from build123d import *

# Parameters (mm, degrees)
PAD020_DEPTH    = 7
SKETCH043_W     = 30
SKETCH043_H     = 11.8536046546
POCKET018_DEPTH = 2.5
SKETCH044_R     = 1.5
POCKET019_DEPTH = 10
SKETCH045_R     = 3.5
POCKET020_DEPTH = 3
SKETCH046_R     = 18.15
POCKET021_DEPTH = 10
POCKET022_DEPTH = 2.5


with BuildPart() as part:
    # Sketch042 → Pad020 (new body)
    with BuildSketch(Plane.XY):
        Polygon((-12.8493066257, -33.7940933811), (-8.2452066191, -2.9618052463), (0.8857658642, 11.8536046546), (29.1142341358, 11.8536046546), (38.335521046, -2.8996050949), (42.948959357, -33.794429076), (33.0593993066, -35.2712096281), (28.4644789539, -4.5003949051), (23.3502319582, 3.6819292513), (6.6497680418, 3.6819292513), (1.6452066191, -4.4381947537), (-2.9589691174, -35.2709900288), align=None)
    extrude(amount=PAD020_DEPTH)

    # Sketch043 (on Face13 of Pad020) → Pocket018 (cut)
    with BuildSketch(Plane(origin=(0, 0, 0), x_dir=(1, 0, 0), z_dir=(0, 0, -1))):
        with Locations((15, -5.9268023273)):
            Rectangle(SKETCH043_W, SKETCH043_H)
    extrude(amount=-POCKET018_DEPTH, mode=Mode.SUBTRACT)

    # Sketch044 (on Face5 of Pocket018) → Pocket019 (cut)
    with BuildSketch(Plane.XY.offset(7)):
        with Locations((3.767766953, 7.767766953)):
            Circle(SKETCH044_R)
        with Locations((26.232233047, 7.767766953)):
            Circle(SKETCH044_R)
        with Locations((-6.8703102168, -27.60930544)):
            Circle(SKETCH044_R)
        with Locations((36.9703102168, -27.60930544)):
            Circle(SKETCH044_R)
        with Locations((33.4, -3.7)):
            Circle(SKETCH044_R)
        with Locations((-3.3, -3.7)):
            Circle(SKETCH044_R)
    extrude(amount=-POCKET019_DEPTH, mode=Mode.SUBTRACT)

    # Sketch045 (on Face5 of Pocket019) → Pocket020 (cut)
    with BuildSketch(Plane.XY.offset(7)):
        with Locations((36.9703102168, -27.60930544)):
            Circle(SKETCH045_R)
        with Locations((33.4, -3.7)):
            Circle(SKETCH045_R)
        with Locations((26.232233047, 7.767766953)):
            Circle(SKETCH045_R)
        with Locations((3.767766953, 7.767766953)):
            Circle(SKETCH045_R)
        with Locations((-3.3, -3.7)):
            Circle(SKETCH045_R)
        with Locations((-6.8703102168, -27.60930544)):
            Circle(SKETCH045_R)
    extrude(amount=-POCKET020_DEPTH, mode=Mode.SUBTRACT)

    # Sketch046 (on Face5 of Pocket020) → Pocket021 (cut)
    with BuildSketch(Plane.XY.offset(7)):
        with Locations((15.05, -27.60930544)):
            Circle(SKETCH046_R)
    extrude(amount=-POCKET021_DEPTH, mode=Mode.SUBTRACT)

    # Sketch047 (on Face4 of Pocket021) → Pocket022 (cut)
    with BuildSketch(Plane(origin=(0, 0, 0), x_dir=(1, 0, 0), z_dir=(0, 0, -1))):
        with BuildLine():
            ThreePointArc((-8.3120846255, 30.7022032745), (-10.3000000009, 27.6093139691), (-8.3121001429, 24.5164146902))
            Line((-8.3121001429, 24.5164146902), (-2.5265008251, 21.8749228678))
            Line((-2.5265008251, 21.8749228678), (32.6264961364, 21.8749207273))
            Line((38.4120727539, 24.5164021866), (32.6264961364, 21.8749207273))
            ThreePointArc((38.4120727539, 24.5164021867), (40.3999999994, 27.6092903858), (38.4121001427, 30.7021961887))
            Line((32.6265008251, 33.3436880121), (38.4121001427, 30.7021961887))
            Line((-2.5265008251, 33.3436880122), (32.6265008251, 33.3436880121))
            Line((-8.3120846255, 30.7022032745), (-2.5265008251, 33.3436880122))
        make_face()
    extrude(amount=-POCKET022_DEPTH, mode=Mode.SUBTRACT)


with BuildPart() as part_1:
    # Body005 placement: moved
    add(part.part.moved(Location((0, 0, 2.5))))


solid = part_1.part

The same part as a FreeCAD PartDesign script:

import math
import FreeCAD as App
import Part
import Sketcher
Q = App.Units.Quantity


def add_polygon(sketch, points):
    """Adds a closed chain of lines whose ends are joined by coincident constraints."""
    first, n = sketch.GeometryCount, len(points)
    for a, b in zip(points, points[1:] + points[:1]):
        sketch.addGeometry(Part.LineSegment(App.Vector(*a, 0), App.Vector(*b, 0)), False)
    for i in range(n):
        sketch.addConstraint(Sketcher.Constraint("Coincident", first + i, 2, first + (i + 1) % n, 1))

doc = App.newDocument("Part")
params = doc.addObject("Spreadsheet::Sheet", "Params")
for row, (alias, value) in enumerate([
    ("sketch1_length", "10 mm"),
    ("pad1_length", "7 mm"),
    ("sketch2_width", "30 mm"),
    ("pocket1_length", "2.5 mm"),
    ("sketch3_diameter", "3 mm"),
    ("pocket2_length", "10 mm"),
    ("sketch4_diameter", "7 mm"),
    ("pocket3_length", "3 mm"),
    ("sketch5_diameter", "36.3 mm"),
    ("pocket4_length", "10 mm"),
    ("sketch6_radius", "3.4 mm"),
    ("pocket5_length", "2.5 mm"),
], start=1):
    params.set(f"A{row}", alias)
    params.set(f"B{row}", "=" + value)
    params.setAlias(f"B{row}", alias)

body = doc.addObject("PartDesign::Body", "Body")

# Sketch on XY plane
sketch1 = body.newObject("Sketcher::SketchObject", "Sketch")
sketch1.AttachmentSupport = (doc.getObject("XY_Plane"), [""])
sketch1.MapMode = "FlatFace"
add_polygon(sketch1, [(-8, -3), (-13, -34), (-3, -35), (2, -4), (7, 4), (23, 4), (28, -5), (33, -35), (43, -34), (38, -3), (29, 12), (1, 12)])  # lines 0-11
sketch1.addConstraint([
    Sketcher.Constraint("Horizontal", 4),
    Sketcher.Constraint("Horizontal", 10),
    Sketcher.Constraint("Perpendicular", 0, 1),
    Sketcher.Constraint("Perpendicular", 1, 2),
    Sketcher.Constraint("Perpendicular", 6, 7),
    Sketcher.Constraint("Perpendicular", 7, 8),
    Sketcher.Constraint("Parallel", 5, 9),
    Sketcher.Constraint("Parallel", 3, 11),
    Sketcher.Constraint("Distance", 1, Q("10 mm")),
    Sketcher.Constraint("DistanceY", 5, 2, 9, 2, Q("16.354 mm")),
    Sketcher.Constraint("DistanceX", 10, 2, 10, 1, Q("28.228468 mm")),
    Sketcher.Constraint("DistanceX", -1, 1, 6, 2, Q("33.059399 mm")),
    Sketcher.Constraint("DistanceY", 0, 2, 2, 2, Q("29.355899 mm")),
    Sketcher.Constraint("DistanceX", 1, 2, 4, 2, Q("26.309201 mm")),
    Sketcher.Constraint("DistanceY", 5, 2, 2, 2, Q("0.0622 mm")),
    Sketcher.Constraint("DistanceX", 0, 2, 11, 2, Q("4.6041 mm")),
    Sketcher.Constraint("Distance", 0, Q("31.174152 mm")),
    Sketcher.Constraint("Distance", 3, Q("9.538451 mm")),
    Sketcher.Constraint("Distance", 8, Q("31.237381 mm")),
    Sketcher.Constraint("Distance", 9, Q("17.397969 mm")),
    Sketcher.Constraint("Distance", 11, Q("17.40319 mm")),
    Sketcher.Constraint("DistanceX", 1, 2, -1, 1, Q("2.958969 mm")),
    Sketcher.Constraint("DistanceY", 1, 2, -1, 1, Q("35.27099 mm")),
    Sketcher.Constraint("DistanceX", -1, 1, 5, 2, Q("28.464479 mm")),
])
sketch1.setExpression("Constraints[20]", "Params.sketch1_length")
pad1 = body.newObject("PartDesign::Pad", "Pad")
pad1.Profile = sketch1
pad1.setExpression("Length", "Params.pad1_length")

# Sketch on XY plane
sketch2 = body.newObject("Sketcher::SketchObject", "Sketch001")
sketch2.AttachmentSupport = (doc.getObject("XY_Plane"), [""])
sketch2.MapMode = "FlatFace"
add_polygon(sketch2, [(0, 0), (0, 12), (30, 12), (30, 0)])  # lines 0-3
sketch2.addConstraint([
    Sketcher.Constraint("Vertical", 0),
    Sketcher.Constraint("Horizontal", 1),
    Sketcher.Constraint("Vertical", 2),
    Sketcher.Constraint("Horizontal", 3),
    Sketcher.Constraint("Coincident", 3, 2, -1, 1),
    Sketcher.Constraint("DistanceX", 1, 1, 1, 2, Q("30 mm")),
    Sketcher.Constraint("DistanceY", 0, 1, 0, 2, Q("11.853605 mm")),
])
sketch2.setExpression("Constraints[9]", "Params.sketch2_width")
pocket1 = body.newObject("PartDesign::Pocket", "Pocket")
pocket1.Profile = sketch2
pocket1.setExpression("Length", "Params.pocket1_length")
pocket1.Reversed = True

# Sketch on XY plane
sketch3 = body.newObject("Sketcher::SketchObject", "Sketch002")
sketch3.AttachmentSupport = (doc.getObject("XY_Plane"), [""])
sketch3.MapMode = "FlatFace"
sketch3.AttachmentOffset = App.Placement(App.Vector(0, 0, 7), App.Rotation())
sketch3.addGeometry([
    Part.Circle(App.Vector(3.8, 7.8, 0), App.Vector(0, 0, 1), 1.5),  # 0
    Part.Circle(App.Vector(26.2, 7.8, 0), App.Vector(0, 0, 1), 1.5),  # 1
    Part.Circle(App.Vector(-6.9, -27.6, 0), App.Vector(0, 0, 1), 1.5),  # 2
    Part.Circle(App.Vector(37, -27.6, 0), App.Vector(0, 0, 1), 1.5),  # 3
    Part.Circle(App.Vector(33.4, -3.7, 0), App.Vector(0, 0, 1), 1.5),  # 4
    Part.Circle(App.Vector(-3.3, -3.7, 0), App.Vector(0, 0, 1), 1.5),  # 5
], False)
sketch3.addConstraint([
    Sketcher.Constraint("Equal", 0, 1),
    Sketcher.Constraint("Equal", 1, 2),
    Sketcher.Constraint("Equal", 2, 3),
    Sketcher.Constraint("Equal", 3, 4),
    Sketcher.Constraint("Equal", 4, 5),
    Sketcher.Constraint("Horizontal", 0, 3, 1, 3),
    Sketcher.Constraint("Horizontal", 2, 3, 3, 3),
    Sketcher.Constraint("Horizontal", 4, 3, 5, 3),
    Sketcher.Constraint("Diameter", 0, Q("3 mm")),
    Sketcher.Constraint("DistanceX", -1, 1, 4, 3, Q("33.4 mm")),
    Sketcher.Constraint("DistanceY", 4, 3, -1, 1, Q("3.7 mm")),
    Sketcher.Constraint("DistanceX", 5, 3, -1, 1, Q("3.3 mm")),
    Sketcher.Constraint("DistanceX", 2, 3, -1, 1, Q("6.87031 mm")),
    Sketcher.Constraint("DistanceX", -1, 1, 3, 3, Q("36.97031 mm")),
    Sketcher.Constraint("DistanceX", -1, 1, 0, 3, Q("3.767767 mm")),
    Sketcher.Constraint("DistanceY", -1, 1, 0, 3, Q("7.767767 mm")),
    Sketcher.Constraint("DistanceX", -1, 1, 1, 3, Q("26.232233 mm")),
    Sketcher.Constraint("DistanceY", 2, 3, -1, 1, Q("27.609305 mm")),
])
sketch3.setExpression("Constraints[8]", "Params.sketch3_diameter")
pocket2 = body.newObject("PartDesign::Pocket", "Pocket001")
pocket2.Profile = sketch3
pocket2.setExpression("Length", "Params.pocket2_length")

# Sketch on XY plane
sketch4 = body.newObject("Sketcher::SketchObject", "Sketch003")
sketch4.AttachmentSupport = (doc.getObject("XY_Plane"), [""])
sketch4.MapMode = "FlatFace"
sketch4.AttachmentOffset = App.Placement(App.Vector(0, 0, 7), App.Rotation())
sketch4.addGeometry([
    Part.Circle(App.Vector(37, -27.6, 0), App.Vector(0, 0, 1), 3.5),  # 0
    Part.Circle(App.Vector(33.4, -3.7, 0), App.Vector(0, 0, 1), 3.5),  # 1
    Part.Circle(App.Vector(26.2, 7.8, 0), App.Vector(0, 0, 1), 3.5),  # 2
    Part.Circle(App.Vector(3.8, 7.8, 0), App.Vector(0, 0, 1), 3.5),  # 3
    Part.Circle(App.Vector(-3.3, -3.7, 0), App.Vector(0, 0, 1), 3.5),  # 4
    Part.Circle(App.Vector(-6.9, -27.6, 0), App.Vector(0, 0, 1), 3.5),  # 5
], False)
sketch4.addConstraint([
    Sketcher.Constraint("Equal", 0, 1),
    Sketcher.Constraint("Equal", 1, 2),
    Sketcher.Constraint("Equal", 2, 3),
    Sketcher.Constraint("Equal", 3, 4),
    Sketcher.Constraint("Equal", 4, 5),
    Sketcher.Constraint("Horizontal", 2, 3, 3, 3),
    Sketcher.Constraint("Horizontal", 1, 3, 4, 3),
    Sketcher.Constraint("Horizontal", 0, 3, 5, 3),
    Sketcher.Constraint("Diameter", 0, Q("7 mm")),
    Sketcher.Constraint("DistanceX", -1, 1, 1, 3, Q("33.4 mm")),
    Sketcher.Constraint("DistanceY", 1, 3, -1, 1, Q("3.7 mm")),
    Sketcher.Constraint("DistanceX", 4, 3, -1, 1, Q("3.3 mm")),
    Sketcher.Constraint("DistanceX", -1, 1, 0, 3, Q("36.97031 mm")),
    Sketcher.Constraint("DistanceX", 5, 3, -1, 1, Q("6.87031 mm")),
    Sketcher.Constraint("DistanceY", 0, 3, -1, 1, Q("27.609305 mm")),
    Sketcher.Constraint("DistanceX", -1, 1, 2, 3, Q("26.232233 mm")),
    Sketcher.Constraint("DistanceY", -1, 1, 2, 3, Q("7.767767 mm")),
    Sketcher.Constraint("DistanceX", -1, 1, 3, 3, Q("3.767767 mm")),
])
sketch4.setExpression("Constraints[8]", "Params.sketch4_diameter")
pocket3 = body.newObject("PartDesign::Pocket", "Pocket002")
pocket3.Profile = sketch4
pocket3.setExpression("Length", "Params.pocket3_length")

# Sketch on XY plane
sketch5 = body.newObject("Sketcher::SketchObject", "Sketch004")
sketch5.AttachmentSupport = (doc.getObject("XY_Plane"), [""])
sketch5.MapMode = "FlatFace"
sketch5.AttachmentOffset = App.Placement(App.Vector(0, 0, 7), App.Rotation())
sketch5.addGeometry(Part.Circle(App.Vector(15, -28, 0), App.Vector(0, 0, 1), 18), False)
sketch5.addConstraint([
    Sketcher.Constraint("Diameter", 0, Q("36.3 mm")),
    Sketcher.Constraint("DistanceX", -1, 1, 0, 3, Q("15.05 mm")),
    Sketcher.Constraint("DistanceY", 0, 3, -1, 1, Q("27.609305 mm")),
])
sketch5.setExpression("Constraints[0]", "Params.sketch5_diameter")
pocket4 = body.newObject("PartDesign::Pocket", "Pocket003")
pocket4.Profile = sketch5
pocket4.setExpression("Length", "Params.pocket4_length")

# Sketch on XY plane
sketch6 = body.newObject("Sketcher::SketchObject", "Sketch005")
sketch6.AttachmentSupport = (doc.getObject("XY_Plane"), [""])
sketch6.MapMode = "FlatFace"
sketch6.addGeometry([
    Part.ArcOfCircle(Part.Circle(App.Vector(-6.9, -27.6, 0), App.Vector(0, 0, 1), 3.4), math.radians(115), math.radians(245)),  # 0
    Part.LineSegment(App.Vector(-8.3, -24.5, 0), App.Vector(-2.5, -21.9, 0)),  # 1
    Part.LineSegment(App.Vector(-2.5, -21.9, 0), App.Vector(32.6, -21.9, 0)),  # 2
    Part.LineSegment(App.Vector(32.6, -21.9, 0), App.Vector(38.4, -24.5, 0)),  # 3
    Part.ArcOfCircle(Part.Circle(App.Vector(37, -27.6, 0), App.Vector(0, 0, 1), 3.4), math.radians(-65), math.radians(65)),  # 4
    Part.LineSegment(App.Vector(38.4, -30.7, 0), App.Vector(32.6, -33.3, 0)),  # 5
    Part.LineSegment(App.Vector(32.6, -33.3, 0), App.Vector(-2.5, -33.3, 0)),  # 6
    Part.LineSegment(App.Vector(-2.5, -33.3, 0), App.Vector(-8.3, -30.7, 0)),  # 7
], False)
sketch6.addConstraint([
    Sketcher.Constraint("Tangent", 0, 1, 1, 1),
    Sketcher.Constraint("Coincident", 1, 2, 2, 1),
    Sketcher.Constraint("Coincident", 2, 2, 3, 1),
    Sketcher.Constraint("Coincident", 3, 2, 4, 2),
    Sketcher.Constraint("Tangent", 4, 1, 5, 1),
    Sketcher.Constraint("Coincident", 5, 2, 6, 1),
    Sketcher.Constraint("Coincident", 6, 2, 7, 1),
    Sketcher.Constraint("Coincident", 7, 2, 0, 2),
    Sketcher.Constraint("Horizontal", 6),
    Sketcher.Constraint("Equal", 0, 4),
    Sketcher.Constraint("Parallel", 1, 5),
    Sketcher.Constraint("Parallel", 3, 7),
    Sketcher.Constraint("Horizontal", 0, 3, 4, 3),
    Sketcher.Constraint("Vertical", 1, 2, 6, 2),
    Sketcher.Constraint("Equal", 1, 5),
    Sketcher.Constraint("Radius", 0, Q("3.4 mm")),
    Sketcher.Constraint("Angle", 2, Q("0.000003 deg")),
    Sketcher.Constraint("DistanceX", -1, 1, 4, 3, Q("37 mm")),
    Sketcher.Constraint("DistanceX", 0, 3, -1, 1, Q("6.9 mm")),
    Sketcher.Constraint("DistanceX", 6, 2, 6, 1, Q("35.153002 mm")),
    Sketcher.Constraint("DistanceX", 0, 1, -1, 1, Q("8.3121 mm")),
    Sketcher.Constraint("DistanceY", 2, 2, -1, 1, Q("21.874921 mm")),
    Sketcher.Constraint("DistanceY", 3, 2, 2, 2, Q("2.641481 mm")),
    Sketcher.Constraint("DistanceY", 7, 2, 0, 1, Q("6.185789 mm")),
])
sketch6.setExpression("Constraints[15]", "Params.sketch6_radius")
pocket5 = body.newObject("PartDesign::Pocket", "Pocket004")
pocket5.Profile = sketch6
pocket5.setExpression("Length", "Params.pocket5_length")
pocket5.Reversed = True
body2 = doc.addObject("PartDesign::Body", "Body001")
doc.recompute()

body.Placement = App.Placement(App.Vector(0, 0, 2.5), App.Rotation(App.Vector(0, 0, 1), 0))
boolean = body2.newObject("PartDesign::Boolean", "Boolean")
boolean.Type = "Fuse"
boolean.addObjects([body])

doc.recompute()
